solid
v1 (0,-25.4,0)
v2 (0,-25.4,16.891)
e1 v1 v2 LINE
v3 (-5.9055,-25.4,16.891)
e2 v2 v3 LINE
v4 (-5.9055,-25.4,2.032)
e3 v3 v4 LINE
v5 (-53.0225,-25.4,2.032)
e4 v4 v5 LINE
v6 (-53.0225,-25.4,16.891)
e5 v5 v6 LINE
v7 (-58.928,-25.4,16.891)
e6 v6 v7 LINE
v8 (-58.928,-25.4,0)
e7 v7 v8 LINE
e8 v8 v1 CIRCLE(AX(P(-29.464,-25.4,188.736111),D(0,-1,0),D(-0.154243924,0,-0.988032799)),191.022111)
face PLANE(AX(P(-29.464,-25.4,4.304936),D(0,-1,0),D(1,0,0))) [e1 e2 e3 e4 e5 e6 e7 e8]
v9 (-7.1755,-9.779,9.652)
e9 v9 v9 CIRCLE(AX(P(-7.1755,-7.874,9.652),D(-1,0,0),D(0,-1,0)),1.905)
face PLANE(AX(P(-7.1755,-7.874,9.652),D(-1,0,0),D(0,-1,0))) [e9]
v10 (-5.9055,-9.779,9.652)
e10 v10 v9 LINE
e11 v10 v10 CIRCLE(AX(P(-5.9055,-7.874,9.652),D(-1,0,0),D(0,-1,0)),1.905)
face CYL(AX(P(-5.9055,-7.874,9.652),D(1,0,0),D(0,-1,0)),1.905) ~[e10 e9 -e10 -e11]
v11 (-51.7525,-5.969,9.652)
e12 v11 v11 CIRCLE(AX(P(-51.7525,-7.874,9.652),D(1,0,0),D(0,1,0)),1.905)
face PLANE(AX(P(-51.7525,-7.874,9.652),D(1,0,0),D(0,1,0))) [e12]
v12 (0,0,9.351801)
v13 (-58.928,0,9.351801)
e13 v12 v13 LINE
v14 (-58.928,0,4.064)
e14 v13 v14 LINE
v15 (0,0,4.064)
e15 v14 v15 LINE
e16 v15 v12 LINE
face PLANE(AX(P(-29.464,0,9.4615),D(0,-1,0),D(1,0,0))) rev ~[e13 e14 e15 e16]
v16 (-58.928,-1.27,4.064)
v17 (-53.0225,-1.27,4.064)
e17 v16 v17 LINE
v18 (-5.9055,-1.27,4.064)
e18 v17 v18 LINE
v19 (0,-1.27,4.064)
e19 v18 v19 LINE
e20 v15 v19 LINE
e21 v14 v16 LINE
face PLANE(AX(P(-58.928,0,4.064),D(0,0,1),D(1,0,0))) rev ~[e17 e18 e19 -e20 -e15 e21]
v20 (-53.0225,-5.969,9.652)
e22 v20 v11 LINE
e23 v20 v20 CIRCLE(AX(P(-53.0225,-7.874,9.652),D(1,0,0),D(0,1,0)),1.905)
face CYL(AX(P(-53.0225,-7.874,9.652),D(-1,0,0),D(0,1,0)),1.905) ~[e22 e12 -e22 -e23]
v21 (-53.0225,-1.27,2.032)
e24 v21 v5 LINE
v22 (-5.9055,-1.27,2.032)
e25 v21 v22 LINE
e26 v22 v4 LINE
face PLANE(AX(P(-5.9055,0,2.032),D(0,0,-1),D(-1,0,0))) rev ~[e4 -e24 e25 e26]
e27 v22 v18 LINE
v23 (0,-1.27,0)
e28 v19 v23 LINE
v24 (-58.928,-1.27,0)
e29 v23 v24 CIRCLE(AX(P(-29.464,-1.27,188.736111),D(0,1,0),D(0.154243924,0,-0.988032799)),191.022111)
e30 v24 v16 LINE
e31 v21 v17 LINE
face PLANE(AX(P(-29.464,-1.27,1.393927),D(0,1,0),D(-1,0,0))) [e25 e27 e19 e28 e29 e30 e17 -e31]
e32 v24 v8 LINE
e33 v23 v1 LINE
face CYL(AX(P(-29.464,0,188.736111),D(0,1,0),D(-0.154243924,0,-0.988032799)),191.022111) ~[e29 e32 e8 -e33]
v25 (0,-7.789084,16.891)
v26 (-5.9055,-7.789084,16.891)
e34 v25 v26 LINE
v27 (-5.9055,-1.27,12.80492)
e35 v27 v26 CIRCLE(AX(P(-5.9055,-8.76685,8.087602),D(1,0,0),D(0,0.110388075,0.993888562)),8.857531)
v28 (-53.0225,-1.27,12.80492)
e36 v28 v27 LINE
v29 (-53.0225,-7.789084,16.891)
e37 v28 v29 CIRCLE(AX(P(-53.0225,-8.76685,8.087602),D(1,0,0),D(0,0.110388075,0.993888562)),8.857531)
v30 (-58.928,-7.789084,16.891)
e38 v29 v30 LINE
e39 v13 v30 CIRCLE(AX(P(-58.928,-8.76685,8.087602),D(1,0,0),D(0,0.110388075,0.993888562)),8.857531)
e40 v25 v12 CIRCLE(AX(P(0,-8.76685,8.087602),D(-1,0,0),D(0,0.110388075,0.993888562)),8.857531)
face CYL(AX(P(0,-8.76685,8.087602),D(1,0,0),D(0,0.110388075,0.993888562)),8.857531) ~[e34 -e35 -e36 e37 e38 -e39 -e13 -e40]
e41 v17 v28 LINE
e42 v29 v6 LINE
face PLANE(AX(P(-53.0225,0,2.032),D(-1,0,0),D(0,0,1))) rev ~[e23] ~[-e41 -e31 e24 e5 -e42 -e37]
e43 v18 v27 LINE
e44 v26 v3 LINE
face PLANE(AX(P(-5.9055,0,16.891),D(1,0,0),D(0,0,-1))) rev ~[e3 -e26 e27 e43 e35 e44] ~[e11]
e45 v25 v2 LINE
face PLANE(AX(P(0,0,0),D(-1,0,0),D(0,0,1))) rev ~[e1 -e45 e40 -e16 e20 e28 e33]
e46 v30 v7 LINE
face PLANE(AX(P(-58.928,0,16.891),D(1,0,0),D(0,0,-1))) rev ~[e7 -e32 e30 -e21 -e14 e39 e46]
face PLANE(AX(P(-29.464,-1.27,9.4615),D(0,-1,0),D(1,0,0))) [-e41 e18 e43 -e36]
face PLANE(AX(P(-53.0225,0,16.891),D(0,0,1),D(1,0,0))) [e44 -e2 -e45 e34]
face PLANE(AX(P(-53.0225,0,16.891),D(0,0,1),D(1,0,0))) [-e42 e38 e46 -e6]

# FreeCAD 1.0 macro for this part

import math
import FreeCAD as App
import Part
import Sketcher

V = App.Vector
Q = App.Units.Quantity

doc = App.newDocument("Part")
body = doc.addObject("PartDesign::Body", "Body")

sketch1 = doc.addObject("Sketcher::SketchObject", "Sketch")
body.addObject(sketch1)
sketch1.AttachmentSupport = (doc.XZ_Plane, [""])
sketch1.MapMode = "FlatFace"
sketch1.addGeometry(Part.ArcOfCircle(Part.Circle(V(-29, 189, 0), V(0, 0, 1), 191), math.radians(-98.87), math.radians(-81.13)), False)
sketch1.addGeometry(Part.LineSegment(V(0, 0, 0), V(0, 17, 0)), False)
sketch1.addGeometry(Part.LineSegment(V(0, 17, 0), V(-6, 17, 0)), False)
sketch1.addGeometry(Part.LineSegment(V(-6, 17, 0), V(-6, 2, 0)), False)
sketch1.addGeometry(Part.LineSegment(V(-6, 2, 0), V(-53, 2, 0)), False)
sketch1.addGeometry(Part.LineSegment(V(-53, 2, 0), V(-53, 17, 0)), False)
sketch1.addGeometry(Part.LineSegment(V(-53, 17, 0), V(-59, 17, 0)), False)
sketch1.addGeometry(Part.LineSegment(V(-59, 17, 0), V(-59, 0, 0)), False)
sketch1.addConstraint(Sketcher.Constraint("Coincident", 0, 2, 1, 1))
sketch1.addConstraint(Sketcher.Constraint("Coincident", 1, 2, 2, 1))
sketch1.addConstraint(Sketcher.Constraint("Coincident", 2, 2, 3, 1))
sketch1.addConstraint(Sketcher.Constraint("Coincident", 3, 2, 4, 1))
sketch1.addConstraint(Sketcher.Constraint("Coincident", 4, 2, 5, 1))
sketch1.addConstraint(Sketcher.Constraint("Coincident", 5, 2, 6, 1))
sketch1.addConstraint(Sketcher.Constraint("Coincident", 6, 2, 7, 1))
sketch1.addConstraint(Sketcher.Constraint("Coincident", 7, 2, 0, 1))
sketch1.addConstraint(Sketcher.Constraint("Vertical", 1))
sketch1.addConstraint(Sketcher.Constraint("Horizontal", 2))
sketch1.addConstraint(Sketcher.Constraint("Vertical", 3))
sketch1.addConstraint(Sketcher.Constraint("Horizontal", 4))
sketch1.addConstraint(Sketcher.Constraint("Vertical", 5))
sketch1.addConstraint(Sketcher.Constraint("Horizontal", 6))
sketch1.addConstraint(Sketcher.Constraint("Vertical", 7))
sketch1.addConstraint(Sketcher.Constraint("Coincident", 0, 2, -1, 1))
sketch1.addConstraint(Sketcher.Constraint("PointOnObject", 7, 2, -1))
sketch1.addConstraint(Sketcher.Constraint("Horizontal", 2, 2, 5, 2))
sketch1.addConstraint(Sketcher.Constraint("Equal", 2, 6))
sketch1.addConstraint(Sketcher.Constraint("DistanceX", 4, 2, 4, 1, Q("1.855 in")))
sketch1.addConstraint(Sketcher.Constraint("DistanceY", 1, 1, 1, 2, Q("0.665 in")))
sketch1.addConstraint(Sketcher.Constraint("DistanceY", 3, 2, 3, 1, Q("0.585 in")))
sketch1.addConstraint(Sketcher.Constraint("DistanceX", 0, 3, -1, 1, Q("1.16 in")))
sketch1.addConstraint(Sketcher.Constraint("Radius", 0, Q("191.022111 mm")))
pad1 = doc.addObject("PartDesign::Pad", "Pad")
body.addObject(pad1)
pad1.Profile = sketch1
pad1.Length = Q("1 in")

sketch2 = doc.addObject("Sketcher::SketchObject", "Sketch001")
body.addObject(sketch2)
sketch2.AttachmentSupport = (doc.XZ_Plane, [""])
sketch2.MapMode = "FlatFace"
sketch2.addGeometry(Part.LineSegment(V(-53, 17, 0), V(-53, 2, 0)), False)
sketch2.addGeometry(Part.LineSegment(V(-53, 2, 0), V(-6, 2, 0)), False)
sketch2.addGeometry(Part.LineSegment(V(-6, 2, 0), V(-6, 17, 0)), False)
sketch2.addGeometry(Part.LineSegment(V(-6, 17, 0), V(-53, 17, 0)), False)
sketch2.addConstraint(Sketcher.Constraint("Coincident", 0, 2, 1, 1))
sketch2.addConstraint(Sketcher.Constraint("Coincident", 1, 2, 2, 1))
sketch2.addConstraint(Sketcher.Constraint("Coincident", 2, 2, 3, 1))
sketch2.addConstraint(Sketcher.Constraint("Coincident", 3, 2, 0, 1))
sketch2.addConstraint(Sketcher.Constraint("Vertical", 0))
sketch2.addConstraint(Sketcher.Constraint("Horizontal", 1))
sketch2.addConstraint(Sketcher.Constraint("Vertical", 2))
sketch2.addConstraint(Sketcher.Constraint("Horizontal", 3))
sketch2.addConstraint(Sketcher.Constraint("DistanceX", 1, 1, 1, 2, Q("1.855 in")))
sketch2.addConstraint(Sketcher.Constraint("DistanceY", 0, 2, 0, 1, Q("0.585 in")))
sketch2.addConstraint(Sketcher.Constraint("DistanceY", -1, 1, 0, 2, Q("0.08 in")))
sketch2.addConstraint(Sketcher.Constraint("DistanceX", 0, 2, -1, 1, Q("2.0875 in")))
pad2 = doc.addObject("PartDesign::Pad", "Pad001")
body.addObject(pad2)
pad2.Profile = sketch2
pad2.Length = Q("0.05 in")

sketch3 = doc.addObject("Sketcher::SketchObject", "Sketch002")
body.addObject(sketch3)
sketch3.AttachmentSupport = (doc.XZ_Plane, [""])
sketch3.MapMode = "FlatFace"
sketch3.addGeometry(Part.LineSegment(V(-58.9, 4.1, 0), V(0, 4.1, 0)), False)
sketch3.addGeometry(Part.LineSegment(V(0, 4.1, 0), V(0, 0, 0)), False)
sketch3.addGeometry(Part.ArcOfCircle(Part.Circle(V(-29.5, 188.7, 0), V(0, 0, 1), 191), math.radians(-98.87), math.radians(-81.13)), False)
sketch3.addGeometry(Part.LineSegment(V(-58.9, 0, 0), V(-58.9, 4.1, 0)), False)
sketch3.addConstraint(Sketcher.Constraint("Coincident", 0, 2, 1, 1))
sketch3.addConstraint(Sketcher.Constraint("Coincident", 1, 2, 2, 2))
sketch3.addConstraint(Sketcher.Constraint("Coincident", 2, 1, 3, 1))
sketch3.addConstraint(Sketcher.Constraint("Coincident", 3, 2, 0, 1))
sketch3.addConstraint(Sketcher.Constraint("Horizontal", 0))
sketch3.addConstraint(Sketcher.Constraint("Vertical", 1))
sketch3.addConstraint(Sketcher.Constraint("Vertical", 3))
sketch3.addConstraint(Sketcher.Constraint("Coincident", 1, 2, -1, 1))
sketch3.addConstraint(Sketcher.Constraint("PointOnObject", 2, 1, -1))
sketch3.addConstraint(Sketcher.Constraint("DistanceX", 0, 1, 0, 2, Q("2.32 in")))
sketch3.addConstraint(Sketcher.Constraint("DistanceY", 1, 2, 1, 1, Q("0.16 in")))
sketch3.addConstraint(Sketcher.Constraint("Radius", 2, Q("191.022111 mm")))
pocket1 = doc.addObject("PartDesign::Pocket", "Pocket")
body.addObject(pocket1)
pocket1.Profile = sketch3
pocket1.Length = Q("0.05 in")
pocket1.Reversed = True

sketch4 = doc.addObject("Sketcher::SketchObject", "Sketch003")
body.addObject(sketch4)
sketch4.AttachmentSupport = (doc.YZ_Plane, [""])
sketch4.MapMode = "FlatFace"
sketch4.AttachmentOffset = App.Placement(V(0, 0, -0.2325 * 25.4), App.Rotation())
sketch4.addGeometry(Part.Circle(V(-7.9, 9.7, 0), V(0, 0, 1), 1.9), False)
sketch4.addConstraint(Sketcher.Constraint("Diameter", 0, Q("0.15 in")))
sketch4.addConstraint(Sketcher.Constraint("DistanceX", 0, 3, -1, 1, Q("0.31 in")))
sketch4.addConstraint(Sketcher.Constraint("DistanceY", -1, 1, 0, 3, Q("0.38 in")))
pad3 = doc.addObject("PartDesign::Pad", "Pad002")
body.addObject(pad3)
pad3.Profile = sketch4
pad3.Length = Q("0.05 in")
pad3.Reversed = True

sketch5 = doc.addObject("Sketcher::SketchObject", "Sketch004")
body.addObject(sketch5)
sketch5.AttachmentSupport = (doc.YZ_Plane, [""])
sketch5.MapMode = "FlatFace"
sketch5.AttachmentOffset = App.Placement(V(0, 0, -2.0875 * 25.4), App.Rotation())
sketch5.addGeometry(Part.Circle(V(-7.9, 9.7, 0), V(0, 0, 1), 1.9), False)
sketch5.addConstraint(Sketcher.Constraint("Diameter", 0, Q("0.15 in")))
sketch5.addConstraint(Sketcher.Constraint("DistanceX", 0, 3, -1, 1, Q("0.31 in")))
sketch5.addConstraint(Sketcher.Constraint("DistanceY", -1, 1, 0, 3, Q("0.38 in")))
pad4 = doc.addObject("PartDesign::Pad", "Pad003")
body.addObject(pad4)
pad4.Profile = sketch5
pad4.Length = Q("0.05 in")

sketch6 = doc.addObject("Sketcher::SketchObject", "Sketch005")
body.addObject(sketch6)
sketch6.AttachmentSupport = (doc.YZ_Plane, [""])
sketch6.MapMode = "FlatFace"
sketch6.addGeometry(Part.ArcOfCircle(Part.Circle(V(-9, 8, 0), V(0, 0, 1), 9), math.radians(8), math.radians(84)), False)
sketch6.addGeometry(Part.LineSegment(V(0, 9, 0), V(0, 17, 0)), False)
sketch6.addGeometry(Part.LineSegment(V(0, 17, 0), V(-8, 17, 0)), False)
sketch6.addConstraint(Sketcher.Constraint("Coincident", 0, 1, 1, 1))
sketch6.addConstraint(Sketcher.Constraint("Coincident", 1, 2, 2, 1))
sketch6.addConstraint(Sketcher.Constraint("Coincident", 2, 2, 0, 2))
sketch6.addConstraint(Sketcher.Constraint("Vertical", 1))
sketch6.addConstraint(Sketcher.Constraint("Horizontal", 2))
sketch6.addConstraint(Sketcher.Constraint("PointOnObject", 0, 1, -2))
sketch6.addConstraint(Sketcher.Constraint("DistanceY", -1, 1, 1, 2, Q("0.665 in")))
sketch6.addConstraint(Sketcher.Constraint("Radius", 0, Q("8.857531 mm")))
sketch6.addConstraint(Sketcher.Constraint("DistanceY", 1, 1, 1, 2, Q("7.539199 mm")))
sketch6.addConstraint(Sketcher.Constraint("DistanceY", -1, 1, 0, 3, Q("8.087602 mm")))
pocket2 = doc.addObject("PartDesign::Pocket", "Pocket001")
body.addObject(pocket2)
pocket2.Profile = sketch6
pocket2.Length = Q("2.5 in")

doc.recompute()
